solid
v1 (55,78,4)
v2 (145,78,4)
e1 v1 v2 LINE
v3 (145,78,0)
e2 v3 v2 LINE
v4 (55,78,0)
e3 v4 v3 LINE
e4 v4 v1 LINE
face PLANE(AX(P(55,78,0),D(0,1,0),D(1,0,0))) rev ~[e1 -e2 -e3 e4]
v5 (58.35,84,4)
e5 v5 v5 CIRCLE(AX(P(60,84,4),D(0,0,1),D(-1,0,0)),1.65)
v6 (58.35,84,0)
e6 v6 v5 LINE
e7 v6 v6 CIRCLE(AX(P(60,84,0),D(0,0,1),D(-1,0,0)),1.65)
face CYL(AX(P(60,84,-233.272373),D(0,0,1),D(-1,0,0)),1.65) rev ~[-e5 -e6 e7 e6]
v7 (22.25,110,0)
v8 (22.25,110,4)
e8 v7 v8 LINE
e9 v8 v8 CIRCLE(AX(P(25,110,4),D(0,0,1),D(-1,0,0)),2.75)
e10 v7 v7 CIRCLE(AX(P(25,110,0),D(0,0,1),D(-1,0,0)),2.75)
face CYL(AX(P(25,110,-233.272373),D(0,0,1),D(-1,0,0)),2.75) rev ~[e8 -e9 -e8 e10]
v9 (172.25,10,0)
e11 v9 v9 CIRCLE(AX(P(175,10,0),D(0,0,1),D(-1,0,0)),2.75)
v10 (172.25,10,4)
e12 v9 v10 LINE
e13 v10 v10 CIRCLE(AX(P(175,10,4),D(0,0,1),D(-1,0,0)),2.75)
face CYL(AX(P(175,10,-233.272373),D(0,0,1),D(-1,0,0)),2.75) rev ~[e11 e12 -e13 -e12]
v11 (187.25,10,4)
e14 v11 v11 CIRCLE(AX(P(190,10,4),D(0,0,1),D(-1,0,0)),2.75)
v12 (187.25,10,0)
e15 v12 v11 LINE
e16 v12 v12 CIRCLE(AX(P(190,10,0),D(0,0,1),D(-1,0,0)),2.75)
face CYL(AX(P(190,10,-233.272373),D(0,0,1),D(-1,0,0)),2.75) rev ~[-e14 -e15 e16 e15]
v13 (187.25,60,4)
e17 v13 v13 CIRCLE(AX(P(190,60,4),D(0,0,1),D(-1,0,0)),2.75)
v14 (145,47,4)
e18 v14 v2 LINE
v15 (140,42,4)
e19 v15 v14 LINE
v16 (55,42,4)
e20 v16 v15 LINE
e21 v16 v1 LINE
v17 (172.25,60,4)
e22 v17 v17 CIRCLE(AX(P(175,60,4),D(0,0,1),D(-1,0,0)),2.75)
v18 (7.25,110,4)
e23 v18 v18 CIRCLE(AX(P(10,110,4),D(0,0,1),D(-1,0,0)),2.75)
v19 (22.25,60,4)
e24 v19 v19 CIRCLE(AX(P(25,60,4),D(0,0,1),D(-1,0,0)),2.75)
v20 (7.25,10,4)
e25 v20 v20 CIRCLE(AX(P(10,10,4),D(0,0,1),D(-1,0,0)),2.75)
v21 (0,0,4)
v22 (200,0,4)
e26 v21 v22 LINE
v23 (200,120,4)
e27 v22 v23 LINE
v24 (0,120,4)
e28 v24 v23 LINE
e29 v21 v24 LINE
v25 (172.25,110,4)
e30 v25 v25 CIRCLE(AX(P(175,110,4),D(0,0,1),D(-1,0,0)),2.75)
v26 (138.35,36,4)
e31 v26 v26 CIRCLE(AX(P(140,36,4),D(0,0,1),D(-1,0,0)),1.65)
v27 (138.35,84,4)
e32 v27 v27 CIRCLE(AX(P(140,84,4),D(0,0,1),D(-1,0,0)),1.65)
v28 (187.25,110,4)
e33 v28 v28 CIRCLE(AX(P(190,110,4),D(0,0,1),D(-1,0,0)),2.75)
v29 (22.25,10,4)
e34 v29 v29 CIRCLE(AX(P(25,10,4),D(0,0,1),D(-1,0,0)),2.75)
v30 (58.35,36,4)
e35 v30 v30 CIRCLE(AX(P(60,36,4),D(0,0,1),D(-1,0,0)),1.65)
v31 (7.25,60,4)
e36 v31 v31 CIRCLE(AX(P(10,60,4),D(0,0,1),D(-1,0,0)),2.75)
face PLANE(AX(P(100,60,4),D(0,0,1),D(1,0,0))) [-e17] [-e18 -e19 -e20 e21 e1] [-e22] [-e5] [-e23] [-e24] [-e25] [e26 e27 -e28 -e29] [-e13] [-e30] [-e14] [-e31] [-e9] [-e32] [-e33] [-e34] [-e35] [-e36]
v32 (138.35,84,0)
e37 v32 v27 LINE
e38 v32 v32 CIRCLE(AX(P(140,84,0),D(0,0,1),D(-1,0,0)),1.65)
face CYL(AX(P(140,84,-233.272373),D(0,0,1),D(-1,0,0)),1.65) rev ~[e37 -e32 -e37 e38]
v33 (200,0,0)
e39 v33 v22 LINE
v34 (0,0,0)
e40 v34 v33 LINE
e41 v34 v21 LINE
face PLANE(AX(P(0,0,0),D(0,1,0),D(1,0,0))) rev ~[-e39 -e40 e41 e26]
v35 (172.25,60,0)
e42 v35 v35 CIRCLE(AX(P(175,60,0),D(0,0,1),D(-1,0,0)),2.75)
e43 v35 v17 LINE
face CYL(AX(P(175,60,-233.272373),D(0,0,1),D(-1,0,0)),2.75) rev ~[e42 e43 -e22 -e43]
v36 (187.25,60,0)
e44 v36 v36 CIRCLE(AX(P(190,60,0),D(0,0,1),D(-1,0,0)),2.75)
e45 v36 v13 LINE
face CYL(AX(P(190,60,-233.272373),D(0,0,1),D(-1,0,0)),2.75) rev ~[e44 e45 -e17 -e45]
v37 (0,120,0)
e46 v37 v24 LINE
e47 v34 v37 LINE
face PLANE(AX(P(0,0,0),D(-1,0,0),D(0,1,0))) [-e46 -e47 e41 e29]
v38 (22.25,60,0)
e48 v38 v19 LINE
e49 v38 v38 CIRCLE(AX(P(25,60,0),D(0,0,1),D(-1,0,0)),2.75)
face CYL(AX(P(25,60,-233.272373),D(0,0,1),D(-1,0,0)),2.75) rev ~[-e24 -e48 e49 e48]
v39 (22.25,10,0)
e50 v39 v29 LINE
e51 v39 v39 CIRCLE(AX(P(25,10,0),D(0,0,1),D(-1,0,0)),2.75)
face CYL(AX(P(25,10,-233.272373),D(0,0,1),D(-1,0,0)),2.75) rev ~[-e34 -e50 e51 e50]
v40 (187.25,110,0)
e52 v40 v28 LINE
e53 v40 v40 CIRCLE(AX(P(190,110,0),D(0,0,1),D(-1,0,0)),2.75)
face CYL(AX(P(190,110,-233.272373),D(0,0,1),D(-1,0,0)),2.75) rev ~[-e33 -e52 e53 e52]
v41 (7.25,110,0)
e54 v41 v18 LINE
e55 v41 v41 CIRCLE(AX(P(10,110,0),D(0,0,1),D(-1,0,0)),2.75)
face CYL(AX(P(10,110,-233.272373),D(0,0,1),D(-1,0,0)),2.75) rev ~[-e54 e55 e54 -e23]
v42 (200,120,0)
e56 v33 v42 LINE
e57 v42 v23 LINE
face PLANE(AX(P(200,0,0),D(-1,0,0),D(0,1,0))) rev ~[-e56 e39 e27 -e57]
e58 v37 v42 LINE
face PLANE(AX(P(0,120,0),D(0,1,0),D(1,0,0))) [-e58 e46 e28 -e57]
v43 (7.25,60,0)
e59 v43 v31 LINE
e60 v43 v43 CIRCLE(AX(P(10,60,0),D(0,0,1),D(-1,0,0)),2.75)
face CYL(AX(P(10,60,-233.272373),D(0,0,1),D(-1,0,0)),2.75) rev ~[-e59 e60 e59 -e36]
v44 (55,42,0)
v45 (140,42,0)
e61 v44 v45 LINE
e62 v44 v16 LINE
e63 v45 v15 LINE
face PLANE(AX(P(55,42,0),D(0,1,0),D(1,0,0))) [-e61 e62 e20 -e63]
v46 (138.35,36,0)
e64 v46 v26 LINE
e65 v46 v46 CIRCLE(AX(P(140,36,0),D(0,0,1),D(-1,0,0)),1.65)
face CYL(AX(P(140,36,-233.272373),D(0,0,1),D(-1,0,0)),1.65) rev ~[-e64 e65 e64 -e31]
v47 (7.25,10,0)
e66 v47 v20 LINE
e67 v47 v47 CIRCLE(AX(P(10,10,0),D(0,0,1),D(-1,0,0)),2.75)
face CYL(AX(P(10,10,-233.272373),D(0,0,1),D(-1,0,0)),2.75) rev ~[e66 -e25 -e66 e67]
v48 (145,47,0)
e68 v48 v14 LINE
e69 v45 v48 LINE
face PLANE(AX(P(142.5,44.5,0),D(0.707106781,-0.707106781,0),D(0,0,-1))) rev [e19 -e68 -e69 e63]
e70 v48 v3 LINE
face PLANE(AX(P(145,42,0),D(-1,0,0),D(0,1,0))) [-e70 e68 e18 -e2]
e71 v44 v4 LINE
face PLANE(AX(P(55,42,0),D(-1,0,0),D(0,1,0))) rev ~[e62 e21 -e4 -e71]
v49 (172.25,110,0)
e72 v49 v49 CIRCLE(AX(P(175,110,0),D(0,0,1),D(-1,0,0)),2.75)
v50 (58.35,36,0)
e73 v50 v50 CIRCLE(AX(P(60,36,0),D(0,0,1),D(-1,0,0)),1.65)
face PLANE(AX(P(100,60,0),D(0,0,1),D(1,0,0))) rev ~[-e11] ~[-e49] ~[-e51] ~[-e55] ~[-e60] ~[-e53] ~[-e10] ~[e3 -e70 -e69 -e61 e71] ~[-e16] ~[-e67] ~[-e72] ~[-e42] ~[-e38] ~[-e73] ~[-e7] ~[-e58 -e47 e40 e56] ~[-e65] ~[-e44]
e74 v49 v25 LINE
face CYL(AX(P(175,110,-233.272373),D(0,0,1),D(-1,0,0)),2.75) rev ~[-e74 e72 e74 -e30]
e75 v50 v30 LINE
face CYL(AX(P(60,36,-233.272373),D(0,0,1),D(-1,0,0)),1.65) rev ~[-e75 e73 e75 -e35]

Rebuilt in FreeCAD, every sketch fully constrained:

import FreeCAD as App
import Part
import Sketcher

V = App.Vector
Q = App.Units.Quantity


def edges_at(feature, points):
    """Names of the edges that pass closest to the given points."""
    edges = feature.Shape.Edges
    near = lambda p: min(range(len(edges)), key=lambda i: edges[i].distToShape(Part.Vertex(*p))[0])
    return sorted({f"Edge{near(p) + 1}" for p in points})


def add_polygon(sketch, points):
    """Adds a closed chain of lines whose ends are joined by coincident constraints."""
    first, n = sketch.GeometryCount, len(points)
    for a, b in zip(points, points[1:] + points[:1]):
        sketch.addGeometry(Part.LineSegment(App.Vector(*a, 0), App.Vector(*b, 0)), False)
    for i in range(n):
        sketch.addConstraint(Sketcher.Constraint("Coincident", first + i, 2, first + (i + 1) % n, 1))

doc = App.newDocument("Part")
params = doc.addObject("Spreadsheet::Sheet", "Params")
for row, (alias, value) in enumerate([
    ("sketch1_width", "200 mm"),
    ("sketch1_height", "120 mm"),
    ("pad1_length", "4 mm"),
    ("sketch2_width", "90 mm"),
    ("sketch2_height", "36 mm"),
    ("chamfer_size", "5 mm"),
    ("sketch3_diameter", "3.3 mm"),
    ("hole_diameter", "3.3 mm"),
    ("sketch4_diameter", "5.5 mm"),
    ("hole2_diameter", "5.5 mm"),
], start=1):
    params.set(f"A{row}", alias)
    params.set(f"B{row}", "=" + value)
    params.setAlias(f"B{row}", alias)

body = doc.addObject("PartDesign::Body", "Body")

# Sketch on XY plane
sketch1 = body.newObject("Sketcher::SketchObject", "Sketch")
sketch1.AttachmentSupport = (doc.getObject("XY_Plane"), [""])
sketch1.MapMode = "FlatFace"
add_polygon(sketch1, [(0, 120), (0, 0), (200, 0), (200, 120)])  # lines 0-3
sketch1.addConstraint([
    Sketcher.Constraint("Vertical", 0),
    Sketcher.Constraint("Horizontal", 1),
    Sketcher.Constraint("Vertical", 2),
    Sketcher.Constraint("Horizontal", 3),
    Sketcher.Constraint("Coincident", 0, 2, -1, 1),
    Sketcher.Constraint("DistanceX", 1, 1, 1, 2, Q("200 mm")),
    Sketcher.Constraint("DistanceY", 0, 2, 0, 1, Q("120 mm")),
])
sketch1.setExpression("Constraints[9]", "Params.sketch1_width")
sketch1.setExpression("Constraints[10]", "Params.sketch1_height")
pad1 = body.newObject("PartDesign::Pad", "Pad")
pad1.Profile = sketch1
pad1.setExpression("Length", "Params.pad1_length")

# Sketch on XY plane
sketch2 = body.newObject("Sketcher::SketchObject", "Sketch001")
sketch2.AttachmentSupport = (doc.getObject("XY_Plane"), [""])
sketch2.MapMode = "FlatFace"
add_polygon(sketch2, [(55, 78), (55, 42), (145, 42), (145, 78)])  # lines 0-3
sketch2.addConstraint([
    Sketcher.Constraint("Vertical", 0),
    Sketcher.Constraint("Horizontal", 1),
    Sketcher.Constraint("Vertical", 2),
    Sketcher.Constraint("Horizontal", 3),
    Sketcher.Constraint("DistanceX", 1, 1, 1, 2, Q("90 mm")),
    Sketcher.Constraint("DistanceY", 0, 2, 0, 1, Q("36 mm")),
    Sketcher.Constraint("DistanceX", -1, 1, 0, 2, Q("55 mm")),
    Sketcher.Constraint("DistanceY", -1, 1, 0, 2, Q("42 mm")),
])
sketch2.setExpression("Constraints[8]", "Params.sketch2_width")
sketch2.setExpression("Constraints[9]", "Params.sketch2_height")
pocket1 = body.newObject("PartDesign::Pocket", "Pocket")
pocket1.Profile = sketch2
pocket1.Type = "ThroughAll"
pocket1.Reversed = True
doc.recompute()

chamfer = body.newObject("PartDesign::Chamfer", "Chamfer")
chamfer.Base = (pocket1, edges_at(pocket1, [(145, 42, 2)]))
chamfer.setExpression("Size", "Params.chamfer_size")

# Sketch on XY plane
sketch3 = body.newObject("Sketcher::SketchObject", "Sketch002")
sketch3.AttachmentSupport = (doc.getObject("XY_Plane"), [""])
sketch3.MapMode = "FlatFace"
sketch3.addGeometry([
    Part.Circle(V(140, 84, 0), V(0, 0, 1), 1.6),
    Part.Circle(V(140, 36, 0), V(0, 0, 1), 1.6),
    Part.Circle(V(60, 36, 0), V(0, 0, 1), 1.6),
    Part.Circle(V(60, 84, 0), V(0, 0, 1), 1.6),
], False)
sketch3.addConstraint([
    Sketcher.Constraint("Equal", 0, 1),
    Sketcher.Constraint("Equal", 1, 2),
    Sketcher.Constraint("Equal", 2, 3),
    Sketcher.Constraint("Horizontal", 1, 3, 2, 3),
    Sketcher.Constraint("Horizontal", 0, 3, 3, 3),
    Sketcher.Constraint("Vertical", 0, 3, 1, 3),
    Sketcher.Constraint("Vertical", 2, 3, 3, 3),
    Sketcher.Constraint("Diameter", 0, Q("3.3 mm")),
    Sketcher.Constraint("DistanceX", -1, 1, 0, 3, Q("140 mm")),
    Sketcher.Constraint("DistanceY", -1, 1, 0, 3, Q("84 mm")),
    Sketcher.Constraint("DistanceY", -1, 1, 1, 3, Q("36 mm")),
    Sketcher.Constraint("DistanceX", -1, 1, 2, 3, Q("60 mm")),
])
sketch3.setExpression("Constraints[7]", "Params.sketch3_diameter")
doc.recompute()
hole = body.newObject("PartDesign::Hole", "Hole")
hole.Profile = sketch3
hole.ThreadType = "None"
hole.setExpression("Diameter", "Params.hole_diameter")
hole.DepthType = "ThroughAll"
hole.Reversed = True

# Sketch on XY plane
sketch4 = body.newObject("Sketcher::SketchObject", "Sketch003")
sketch4.AttachmentSupport = (doc.getObject("XY_Plane"), [""])
sketch4.MapMode = "FlatFace"
sketch4.addGeometry([
    Part.Circle(V(25, 110, 0), V(0, 0, 1), 2.8),  # 0
    Part.Circle(V(25, 60, 0), V(0, 0, 1), 2.8),  # 1
    Part.Circle(V(25, 10, 0), V(0, 0, 1), 2.8),  # 2
    Part.Circle(V(175, 110, 0), V(0, 0, 1), 2.8),  # 3
    Part.Circle(V(175, 60, 0), V(0, 0, 1), 2.8),  # 4
    Part.Circle(V(175, 10, 0), V(0, 0, 1), 2.8),  # 5
    Part.Circle(V(10, 110, 0), V(0, 0, 1), 2.8),  # 6
    Part.Circle(V(10, 60, 0), V(0, 0, 1), 2.8),  # 7
    Part.Circle(V(10, 10, 0), V(0, 0, 1), 2.8),  # 8
    Part.Circle(V(190, 110, 0), V(0, 0, 1), 2.8),  # 9
    Part.Circle(V(190, 60, 0), V(0, 0, 1), 2.8),  # 10
    Part.Circle(V(190, 10, 0), V(0, 0, 1), 2.8),  # 11
], False)
sketch4.addConstraint([
    Sketcher.Constraint("Equal", 0, 1),
    Sketcher.Constraint("Equal", 1, 2),
    Sketcher.Constraint("Equal", 2, 3),
    Sketcher.Constraint("Equal", 3, 4),
    Sketcher.Constraint("Equal", 4, 5),
    Sketcher.Constraint("Equal", 5, 6),
    Sketcher.Constraint("Equal", 6, 7),
    Sketcher.Constraint("Equal", 7, 8),
    Sketcher.Constraint("Equal", 8, 9),
    Sketcher.Constraint("Equal", 9, 10),
    Sketcher.Constraint("Equal", 10, 11),
    Sketcher.Constraint("Horizontal", 0, 3, 3, 3),
    Sketcher.Constraint("Horizontal", 1, 3, 4, 3),
    Sketcher.Constraint("Horizontal", 2, 3, 5, 3),
    Sketcher.Constraint("Horizontal", 3, 3, 6, 3),
    Sketcher.Constraint("Horizontal", 4, 3, 7, 3),
    Sketcher.Constraint("Horizontal", 5, 3, 8, 3),
    Sketcher.Constraint("Horizontal", 6, 3, 9, 3),
    Sketcher.Constraint("Horizontal", 7, 3, 10, 3),
    Sketcher.Constraint("Horizontal", 8, 3, 11, 3),
    Sketcher.Constraint("Vertical", 0, 3, 1, 3),
    Sketcher.Constraint("Vertical", 1, 3, 2, 3),
    Sketcher.Constraint("Vertical", 3, 3, 4, 3),
    Sketcher.Constraint("Vertical", 4, 3, 5, 3),
    Sketcher.Constraint("Vertical", 6, 3, 7, 3),
    Sketcher.Constraint("Vertical", 7, 3, 8, 3),
    Sketcher.Constraint("Vertical", 9, 3, 10, 3),
    Sketcher.Constraint("Vertical", 10, 3, 11, 3),
    Sketcher.Constraint("Diameter", 0, Q("5.5 mm")),
    Sketcher.Constraint("DistanceX", -1, 1, 0, 3, Q("25 mm")),
    Sketcher.Constraint("DistanceY", -1, 1, 0, 3, Q("110 mm")),
    Sketcher.Constraint("DistanceY", -1, 1, 1, 3, Q("60 mm")),
    Sketcher.Constraint("DistanceY", -1, 1, 2, 3, Q("10 mm")),
    Sketcher.Constraint("DistanceX", -1, 1, 3, 3, Q("175 mm")),
    Sketcher.Constraint("DistanceX", -1, 1, 6, 3, Q("10 mm")),
    Sketcher.Constraint("DistanceX", -1, 1, 9, 3, Q("190 mm")),
])
sketch4.setExpression("Constraints[28]", "Params.sketch4_diameter")
doc.recompute()
hole2 = body.newObject("PartDesign::Hole", "Hole001")
hole2.Profile = sketch4
hole2.ThreadType = "None"
hole2.setExpression("Diameter", "Params.hole2_diameter")
hole2.DepthType = "ThroughAll"
hole2.Reversed = True

doc.recompute()
